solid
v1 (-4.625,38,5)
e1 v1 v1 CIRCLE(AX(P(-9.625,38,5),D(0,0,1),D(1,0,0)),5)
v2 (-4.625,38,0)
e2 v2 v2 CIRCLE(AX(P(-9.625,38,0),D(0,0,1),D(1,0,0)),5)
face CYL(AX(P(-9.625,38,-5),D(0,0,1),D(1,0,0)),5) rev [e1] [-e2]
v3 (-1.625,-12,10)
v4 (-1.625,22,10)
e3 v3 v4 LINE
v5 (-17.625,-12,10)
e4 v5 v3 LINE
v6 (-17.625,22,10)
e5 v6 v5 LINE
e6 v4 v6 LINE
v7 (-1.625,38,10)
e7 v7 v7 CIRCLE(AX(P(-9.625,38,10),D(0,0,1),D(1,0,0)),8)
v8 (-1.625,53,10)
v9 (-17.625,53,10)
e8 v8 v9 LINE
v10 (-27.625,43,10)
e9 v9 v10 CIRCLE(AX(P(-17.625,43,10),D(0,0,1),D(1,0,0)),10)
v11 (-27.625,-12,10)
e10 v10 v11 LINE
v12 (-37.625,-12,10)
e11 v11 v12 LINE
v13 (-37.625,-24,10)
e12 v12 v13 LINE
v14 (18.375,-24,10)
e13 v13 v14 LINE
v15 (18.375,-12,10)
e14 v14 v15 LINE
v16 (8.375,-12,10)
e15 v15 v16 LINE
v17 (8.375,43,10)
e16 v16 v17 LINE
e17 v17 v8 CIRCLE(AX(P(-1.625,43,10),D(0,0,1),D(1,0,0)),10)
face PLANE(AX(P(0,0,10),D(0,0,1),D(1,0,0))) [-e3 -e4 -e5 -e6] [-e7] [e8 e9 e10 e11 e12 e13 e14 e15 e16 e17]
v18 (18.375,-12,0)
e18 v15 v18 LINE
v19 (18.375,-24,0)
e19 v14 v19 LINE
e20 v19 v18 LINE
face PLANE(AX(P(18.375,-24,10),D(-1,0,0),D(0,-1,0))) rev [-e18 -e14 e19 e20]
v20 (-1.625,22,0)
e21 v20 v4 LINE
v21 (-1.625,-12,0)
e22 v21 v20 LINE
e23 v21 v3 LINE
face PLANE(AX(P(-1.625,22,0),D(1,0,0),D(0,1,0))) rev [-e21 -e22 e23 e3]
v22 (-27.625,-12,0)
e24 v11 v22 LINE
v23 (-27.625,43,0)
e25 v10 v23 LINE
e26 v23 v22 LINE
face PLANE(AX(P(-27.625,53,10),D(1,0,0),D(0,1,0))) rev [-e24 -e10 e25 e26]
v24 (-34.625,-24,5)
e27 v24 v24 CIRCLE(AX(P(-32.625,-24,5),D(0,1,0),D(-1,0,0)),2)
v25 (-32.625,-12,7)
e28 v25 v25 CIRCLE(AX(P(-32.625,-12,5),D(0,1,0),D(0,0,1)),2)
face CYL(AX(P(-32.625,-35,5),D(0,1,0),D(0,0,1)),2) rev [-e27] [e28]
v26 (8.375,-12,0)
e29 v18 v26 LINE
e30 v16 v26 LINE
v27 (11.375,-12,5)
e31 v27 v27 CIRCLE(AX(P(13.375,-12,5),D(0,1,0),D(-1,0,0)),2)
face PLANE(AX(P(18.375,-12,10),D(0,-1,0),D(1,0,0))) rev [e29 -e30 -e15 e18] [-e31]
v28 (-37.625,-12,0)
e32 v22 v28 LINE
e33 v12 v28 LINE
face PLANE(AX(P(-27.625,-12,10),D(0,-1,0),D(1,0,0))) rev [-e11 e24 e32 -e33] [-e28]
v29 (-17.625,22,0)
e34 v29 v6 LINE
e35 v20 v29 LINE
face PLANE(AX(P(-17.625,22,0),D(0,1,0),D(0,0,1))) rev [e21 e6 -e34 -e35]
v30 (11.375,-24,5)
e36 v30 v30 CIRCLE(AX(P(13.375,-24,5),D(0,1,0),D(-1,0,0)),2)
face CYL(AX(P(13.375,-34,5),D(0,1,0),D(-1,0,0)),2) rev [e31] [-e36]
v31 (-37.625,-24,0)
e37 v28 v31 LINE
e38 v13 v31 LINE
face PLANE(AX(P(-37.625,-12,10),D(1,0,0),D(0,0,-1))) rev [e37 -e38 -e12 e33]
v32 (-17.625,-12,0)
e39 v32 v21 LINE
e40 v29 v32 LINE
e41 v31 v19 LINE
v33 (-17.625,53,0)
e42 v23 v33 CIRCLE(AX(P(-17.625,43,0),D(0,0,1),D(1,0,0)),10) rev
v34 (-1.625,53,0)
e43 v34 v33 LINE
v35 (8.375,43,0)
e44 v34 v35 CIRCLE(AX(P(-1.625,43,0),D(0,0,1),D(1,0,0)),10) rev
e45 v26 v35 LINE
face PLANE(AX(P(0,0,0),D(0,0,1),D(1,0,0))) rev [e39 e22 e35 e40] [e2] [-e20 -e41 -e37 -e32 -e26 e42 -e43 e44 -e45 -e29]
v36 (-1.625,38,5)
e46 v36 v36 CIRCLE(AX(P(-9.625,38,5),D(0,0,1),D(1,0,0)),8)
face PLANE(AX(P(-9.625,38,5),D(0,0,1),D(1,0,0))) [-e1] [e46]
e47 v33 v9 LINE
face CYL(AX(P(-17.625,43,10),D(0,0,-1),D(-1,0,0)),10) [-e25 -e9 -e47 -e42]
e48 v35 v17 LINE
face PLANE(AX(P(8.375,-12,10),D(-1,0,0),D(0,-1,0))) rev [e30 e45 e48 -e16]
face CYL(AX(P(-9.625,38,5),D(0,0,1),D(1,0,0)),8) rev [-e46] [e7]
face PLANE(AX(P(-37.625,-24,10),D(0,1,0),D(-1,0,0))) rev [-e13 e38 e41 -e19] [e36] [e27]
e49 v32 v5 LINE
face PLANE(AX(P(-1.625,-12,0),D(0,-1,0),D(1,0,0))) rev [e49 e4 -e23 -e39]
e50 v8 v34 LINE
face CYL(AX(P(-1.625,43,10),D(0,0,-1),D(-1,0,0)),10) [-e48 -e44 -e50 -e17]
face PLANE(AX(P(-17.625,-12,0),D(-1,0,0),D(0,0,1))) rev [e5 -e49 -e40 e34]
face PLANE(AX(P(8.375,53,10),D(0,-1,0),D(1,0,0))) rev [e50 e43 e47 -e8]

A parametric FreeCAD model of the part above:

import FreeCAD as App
import Part
import Sketcher
Q = App.Units.Quantity


def edges_at(feature, points):
    """Names of the edges that pass closest to the given points."""
    edges = feature.Shape.Edges
    near = lambda p: min(range(len(edges)), key=lambda i: edges[i].distToShape(Part.Vertex(*p))[0])
    return sorted({f"Edge{near(p) + 1}" for p in points})


def add_polygon(sketch, points):
    """Adds a closed chain of lines whose ends are joined by coincident constraints."""
    first, n = sketch.GeometryCount, len(points)
    for a, b in zip(points, points[1:] + points[:1]):
        sketch.addGeometry(Part.LineSegment(App.Vector(*a, 0), App.Vector(*b, 0)), False)
    for i in range(n):
        sketch.addConstraint(Sketcher.Constraint("Coincident", first + i, 2, first + (i + 1) % n, 1))

doc = App.newDocument("Part")
body = doc.addObject("PartDesign::Body", "Body")

sketch1 = doc.addObject("Sketcher::SketchObject", "Sketch")
body.addObject(sketch1)
sketch1.AttachmentSupport = (doc.XY_Plane, [""])
sketch1.MapMode = "FlatFace"
add_polygon(sketch1, [(-37.625, -24), (18.375, -24), (18.375, -12), (8.375, -12), (8.375, 53), (-27.625, 53), (-27.625, -12), (-37.625, -12)])
sketch1.addConstraint([
    Sketcher.Constraint("Horizontal", 0),
    Sketcher.Constraint("Vertical", 1),
    Sketcher.Constraint("Horizontal", 2),
    Sketcher.Constraint("Vertical", 3),
    Sketcher.Constraint("Horizontal", 4),
    Sketcher.Constraint("Vertical", 5),
    Sketcher.Constraint("Horizontal", 6),
    Sketcher.Constraint("Vertical", 7),
    Sketcher.Constraint("Horizontal", 2, 2, 5, 2),
    Sketcher.Constraint("Equal", 2, 6),
    Sketcher.Constraint("DistanceX", 0, 1, 0, 2, Q("56 mm")),
    Sketcher.Constraint("DistanceX", 2, 2, 2, 1, Q("10 mm")),
    Sketcher.Constraint("DistanceY", 1, 1, 1, 2, Q("12 mm")),
    Sketcher.Constraint("DistanceY", 3, 1, 3, 2, Q("65 mm")),
    Sketcher.Constraint("DistanceY", 0, 2, -1, 1, Q("24 mm")),
    Sketcher.Constraint("DistanceX", -1, 1, 0, 2, Q("18.375 mm")),
])
pad1 = doc.addObject("PartDesign::Pad", "Pad")
body.addObject(pad1)
pad1.Profile = sketch1
pad1.Length = 10

sketch2 = doc.addObject("Sketcher::SketchObject", "Sketch001")
body.addObject(sketch2)
sketch2.AttachmentSupport = (doc.XY_Plane, [""])
sketch2.MapMode = "FlatFace"
sketch2.AttachmentOffset = App.Placement(App.Vector(0, 0, 10), App.Rotation())
sketch2.addGeometry(Part.Circle(App.Vector(-9.625, 38, 0), App.Vector(0, 0, 1), 8), False)
sketch2.addConstraint([
    Sketcher.Constraint("Diameter", 0, Q("16 mm")),
    Sketcher.Constraint("DistanceY", -1, 1, 0, 3, Q("38 mm")),
    Sketcher.Constraint("DistanceX", 0, 3, -1, 1, Q("9.625 mm")),
])
pocket1 = doc.addObject("PartDesign::Pocket", "Pocket")
body.addObject(pocket1)
pocket1.Profile = sketch2
pocket1.Length = 5
doc.recompute()

fillet = doc.addObject("PartDesign::Fillet", "Fillet")
body.addObject(fillet)
fillet.Base = (pocket1, edges_at(pocket1, [(8.375, 53, 5), (-27.625, 53, 5)]))
fillet.Radius = 10

sketch3 = doc.addObject("Sketcher::SketchObject", "Sketch002")
body.addObject(sketch3)
sketch3.AttachmentSupport = (doc.XZ_Plane, [""])
sketch3.MapMode = "FlatFace"
sketch3.AttachmentOffset = App.Placement(App.Vector(0, 0, 12), App.Rotation())
sketch3.addGeometry(Part.Circle(App.Vector(13.375, 5, 0), App.Vector(0, 0, 1), 2), False)
sketch3.addConstraint([
    Sketcher.Constraint("Diameter", 0, Q("4 mm")),
    Sketcher.Constraint("DistanceY", -1, 1, 0, 3, Q("5 mm")),
    Sketcher.Constraint("DistanceX", -1, 1, 0, 3, Q("13.375 mm")),
])
pocket2 = doc.addObject("PartDesign::Pocket", "Pocket001")
body.addObject(pocket2)
pocket2.Profile = sketch3
pocket2.Length = 22
pocket2.Reversed = True

sketch4 = doc.addObject("Sketcher::SketchObject", "Sketch003")
body.addObject(sketch4)
sketch4.AttachmentSupport = (doc.XZ_Plane, [""])
sketch4.MapMode = "FlatFace"
sketch4.AttachmentOffset = App.Placement(App.Vector(0, 0, 12), App.Rotation())
sketch4.addGeometry(Part.Circle(App.Vector(-32.625, 5, 0), App.Vector(0, 0, 1), 2), False)
sketch4.addConstraint([
    Sketcher.Constraint("Diameter", 0, Q("4 mm")),
    Sketcher.Constraint("DistanceY", -1, 1, 0, 3, Q("5 mm")),
    Sketcher.Constraint("DistanceX", 0, 3, -1, 1, Q("32.625 mm")),
])
pocket3 = doc.addObject("PartDesign::Pocket", "Pocket002")
body.addObject(pocket3)
pocket3.Profile = sketch4
pocket3.Length = 23
pocket3.Reversed = True

sketch5 = doc.addObject("Sketcher::SketchObject", "Sketch004")
body.addObject(sketch5)
sketch5.AttachmentSupport = (doc.XY_Plane, [""])
sketch5.MapMode = "FlatFace"
sketch5.AttachmentOffset = App.Placement(App.Vector(0, 0, 5), App.Rotation())
sketch5.addGeometry(Part.Circle(App.Vector(-9.625, 38, 0), App.Vector(0, 0, 1), 5), False)
sketch5.addConstraint([
    Sketcher.Constraint("Diameter", 0, Q("10 mm")),
    Sketcher.Constraint("DistanceY", -1, 1, 0, 3, Q("38 mm")),
    Sketcher.Constraint("DistanceX", 0, 3, -1, 1, Q("9.625 mm")),
])
pocket4 = doc.addObject("PartDesign::Pocket", "Pocket003")
body.addObject(pocket4)
pocket4.Profile = sketch5
pocket4.Length = 10

sketch6 = doc.addObject("Sketcher::SketchObject", "Sketch005")
body.addObject(sketch6)
sketch6.AttachmentSupport = (doc.XY_Plane, [""])
sketch6.MapMode = "FlatFace"
sketch6.AttachmentOffset = App.Placement(App.Vector(0, 0, 10), App.Rotation())
add_polygon(sketch6, [(-17.625, 22), (-17.625, -12), (-1.625, -12), (-1.625, 22)])
sketch6.addConstraint([
    Sketcher.Constraint("Vertical", 0),
    Sketcher.Constraint("Horizontal", 1),
    Sketcher.Constraint("Vertical", 2),
    Sketcher.Constraint("Horizontal", 3),
    Sketcher.Constraint("DistanceX", 1, 1, 1, 2, Q("16 mm")),
    Sketcher.Constraint("DistanceY", 0, 2, 0, 1, Q("34 mm")),
    Sketcher.Constraint("DistanceY", 0, 2, -1, 1, Q("12 mm")),
    Sketcher.Constraint("DistanceX", 0, 2, -1, 1, Q("17.625 mm")),
])
pocket5 = doc.addObject("PartDesign::Pocket", "Pocket004")
body.addObject(pocket5)
pocket5.Profile = sketch6
pocket5.Length = 10

doc.recompute()
